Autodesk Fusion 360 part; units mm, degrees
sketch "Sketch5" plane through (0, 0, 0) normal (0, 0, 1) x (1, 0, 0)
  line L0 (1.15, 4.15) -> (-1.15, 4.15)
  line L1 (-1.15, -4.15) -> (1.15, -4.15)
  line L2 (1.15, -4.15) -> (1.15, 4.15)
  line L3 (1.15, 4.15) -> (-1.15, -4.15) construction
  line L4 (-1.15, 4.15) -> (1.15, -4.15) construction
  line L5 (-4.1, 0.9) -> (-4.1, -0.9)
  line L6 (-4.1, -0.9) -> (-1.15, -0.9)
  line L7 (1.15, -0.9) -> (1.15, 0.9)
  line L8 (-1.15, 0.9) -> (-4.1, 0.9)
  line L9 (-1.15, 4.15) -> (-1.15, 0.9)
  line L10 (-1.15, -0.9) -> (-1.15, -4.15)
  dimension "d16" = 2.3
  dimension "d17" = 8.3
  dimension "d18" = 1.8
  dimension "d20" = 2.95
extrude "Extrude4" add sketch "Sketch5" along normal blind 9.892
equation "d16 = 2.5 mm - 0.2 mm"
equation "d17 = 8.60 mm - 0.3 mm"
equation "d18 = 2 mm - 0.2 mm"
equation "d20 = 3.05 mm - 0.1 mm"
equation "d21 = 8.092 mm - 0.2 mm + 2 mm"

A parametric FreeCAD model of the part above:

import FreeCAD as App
import Part
import Sketcher

doc = App.newDocument("Part")
body = doc.addObject("PartDesign::Body", "Body")

# Sketch on XY plane
sketch1 = body.newObject("Sketcher::SketchObject", "Sketch")
sketch1.AttachmentSupport = (doc.getObject("XY_Plane"), [""])
sketch1.MapMode = "FlatFace"
sketch1.addGeometry([
    Part.LineSegment(App.Vector(1.15, -4.15, 0), App.Vector(1.15, 4.15, 0)),  # 0
    Part.LineSegment(App.Vector(1.15, 4.15, 0), App.Vector(-1.15, 4.15, 0)),  # 1
    Part.LineSegment(App.Vector(-1.15, 4.15, 0), App.Vector(-1.15, 0.9, 0)),  # 2
    Part.LineSegment(App.Vector(-1.15, 0.9, 0), App.Vector(-4.1, 0.9, 0)),  # 3
    Part.LineSegment(App.Vector(-4.1, 0.9, 0), App.Vector(-4.1, -0.9, 0)),  # 4
    Part.LineSegment(App.Vector(-4.1, -0.9, 0), App.Vector(-1.15, -0.9, 0)),  # 5
    Part.LineSegment(App.Vector(-1.15, -0.9, 0), App.Vector(-1.15, -4.15, 0)),  # 6
    Part.LineSegment(App.Vector(-1.15, -4.15, 0), App.Vector(1.15, -4.15, 0)),  # 7
], False)
sketch1.addConstraint([
    Sketcher.Constraint("Coincident", 0, 2, 1, 1),
    Sketcher.Constraint("Coincident", 1, 2, 2, 1),
    Sketcher.Constraint("Coincident", 2, 2, 3, 1),
    Sketcher.Constraint("Coincident", 3, 2, 4, 1),
    Sketcher.Constraint("Coincident", 4, 2, 5, 1),
    Sketcher.Constraint("Coincident", 5, 2, 6, 1),
    Sketcher.Constraint("Coincident", 6, 2, 7, 1),
    Sketcher.Constraint("Coincident", 7, 2, 0, 1),
    Sketcher.Constraint("Vertical", 0),
    Sketcher.Constraint("Horizontal", 1),
    Sketcher.Constraint("Vertical", 2),
    Sketcher.Constraint("Horizontal", 3),
    Sketcher.Constraint("Vertical", 4),
    Sketcher.Constraint("Horizontal", 5),
    Sketcher.Constraint("Vertical", 6),
    Sketcher.Constraint("Horizontal", 7),
    Sketcher.Constraint("Symmetric", 0, 2, 6, 2, -1, 1),
    Sketcher.Constraint("Symmetric", 2, 2, 5, 2, -1),
    Sketcher.Constraint("DistanceX", 1, 2, 1, 1, 2.3),
    Sketcher.Constraint("DistanceY", 0, 1, 0, 2, 8.3),
    Sketcher.Constraint("DistanceY", 4, 2, 4, 1, 1.8),
    Sketcher.Constraint("DistanceX", 3, 2, 3, 1, 2.95),
])
pad1 = body.newObject("PartDesign::Pad", "Pad")
pad1.Profile = sketch1
pad1.Length = 9.892

doc.recompute()
